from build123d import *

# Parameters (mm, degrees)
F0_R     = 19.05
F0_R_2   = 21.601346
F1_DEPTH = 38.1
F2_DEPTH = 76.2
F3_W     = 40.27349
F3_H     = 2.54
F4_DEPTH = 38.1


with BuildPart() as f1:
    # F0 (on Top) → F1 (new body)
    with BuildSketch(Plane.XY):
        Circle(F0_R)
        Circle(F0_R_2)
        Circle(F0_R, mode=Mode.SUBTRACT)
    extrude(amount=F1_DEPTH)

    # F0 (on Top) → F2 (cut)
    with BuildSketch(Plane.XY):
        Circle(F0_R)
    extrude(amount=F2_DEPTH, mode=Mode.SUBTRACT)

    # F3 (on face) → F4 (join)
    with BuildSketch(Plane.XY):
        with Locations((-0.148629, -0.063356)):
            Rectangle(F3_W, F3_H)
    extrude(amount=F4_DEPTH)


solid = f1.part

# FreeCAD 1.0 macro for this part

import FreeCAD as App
import Part
import Sketcher
Q = App.Units.Quantity


def add_polygon(sketch, points):
    """Adds a closed chain of lines whose ends are joined by coincident constraints."""
    first, n = sketch.GeometryCount, len(points)
    for a, b in zip(points, points[1:] + points[:1]):
        sketch.addGeometry(Part.LineSegment(App.Vector(*a, 0), App.Vector(*b, 0)), False)
    for i in range(n):
        sketch.addConstraint(Sketcher.Constraint("Coincident", first + i, 2, first + (i + 1) % n, 1))

doc = App.newDocument("Part")
body = doc.addObject("PartDesign::Body", "Body")

# Sketch on XY plane
sketch1 = body.newObject("Sketcher::SketchObject", "Sketch")
sketch1.AttachmentSupport = (doc.getObject("XY_Plane"), [""])
sketch1.MapMode = "FlatFace"
sketch1.addGeometry([
    Part.Circle(App.Vector(0, 0, 0), App.Vector(0, 0, 1), 21.601346),
    Part.Circle(App.Vector(0, 0, 0), App.Vector(0, 0, 1), 19.05),
], False)
sketch1.addConstraint([
    Sketcher.Constraint("Coincident", 0, 3, -1, 1),
    Sketcher.Constraint("Coincident", 1, 3, -1, 1),
    Sketcher.Constraint("Diameter", 1, Q("1.5 in")),
    Sketcher.Constraint("Diameter", 0, Q("43.202692 mm")),
])
pad1 = body.newObject("PartDesign::Pad", "Pad")
pad1.Profile = sketch1
pad1.Length = Q("1.5 in")

# Sketch on XY plane
sketch2 = body.newObject("Sketcher::SketchObject", "Sketch001")
sketch2.AttachmentSupport = (doc.getObject("XY_Plane"), [""])
sketch2.MapMode = "FlatFace"
sketch2.addGeometry(Part.Circle(App.Vector(0, 0, 0), App.Vector(0, 0, 1), 19.05), False)
sketch2.addConstraint([
    Sketcher.Constraint("Coincident", 0, 3, -1, 1),
    Sketcher.Constraint("Diameter", 0, Q("1.5 in")),
])
pocket1 = body.newObject("PartDesign::Pocket", "Pocket")
pocket1.Profile = sketch2
pocket1.Length = Q("3 in")
pocket1.Reversed = True

# Sketch on XY plane
sketch3 = body.newObject("Sketcher::SketchObject", "Sketch002")
sketch3.AttachmentSupport = (doc.getObject("XY_Plane"), [""])
sketch3.MapMode = "FlatFace"
add_polygon(sketch3, [(-20.285374, 1.206644), (-20.285374, -1.333356), (19.988116, -1.333356), (19.988116, 1.206644)])  # lines 0-3
sketch3.addConstraint([
    Sketcher.Constraint("Vertical", 0),
    Sketcher.Constraint("Horizontal", 1),
    Sketcher.Constraint("Vertical", 2),
    Sketcher.Constraint("Horizontal", 3),
    Sketcher.Constraint("DistanceY", 0, 2, 0, 1, Q("0.1 in")),
    Sketcher.Constraint("DistanceX", 1, 1, 1, 2, Q("40.27349 mm")),
    Sketcher.Constraint("DistanceX", 0, 2, -1, 1, Q("20.285374 mm")),
    Sketcher.Constraint("DistanceY", 0, 2, -1, 1, Q("1.333356 mm")),
])
pad2 = body.newObject("PartDesign::Pad", "Pad001")
pad2.Profile = sketch3
pad2.Length = Q("1.5 in")

doc.recompute()
